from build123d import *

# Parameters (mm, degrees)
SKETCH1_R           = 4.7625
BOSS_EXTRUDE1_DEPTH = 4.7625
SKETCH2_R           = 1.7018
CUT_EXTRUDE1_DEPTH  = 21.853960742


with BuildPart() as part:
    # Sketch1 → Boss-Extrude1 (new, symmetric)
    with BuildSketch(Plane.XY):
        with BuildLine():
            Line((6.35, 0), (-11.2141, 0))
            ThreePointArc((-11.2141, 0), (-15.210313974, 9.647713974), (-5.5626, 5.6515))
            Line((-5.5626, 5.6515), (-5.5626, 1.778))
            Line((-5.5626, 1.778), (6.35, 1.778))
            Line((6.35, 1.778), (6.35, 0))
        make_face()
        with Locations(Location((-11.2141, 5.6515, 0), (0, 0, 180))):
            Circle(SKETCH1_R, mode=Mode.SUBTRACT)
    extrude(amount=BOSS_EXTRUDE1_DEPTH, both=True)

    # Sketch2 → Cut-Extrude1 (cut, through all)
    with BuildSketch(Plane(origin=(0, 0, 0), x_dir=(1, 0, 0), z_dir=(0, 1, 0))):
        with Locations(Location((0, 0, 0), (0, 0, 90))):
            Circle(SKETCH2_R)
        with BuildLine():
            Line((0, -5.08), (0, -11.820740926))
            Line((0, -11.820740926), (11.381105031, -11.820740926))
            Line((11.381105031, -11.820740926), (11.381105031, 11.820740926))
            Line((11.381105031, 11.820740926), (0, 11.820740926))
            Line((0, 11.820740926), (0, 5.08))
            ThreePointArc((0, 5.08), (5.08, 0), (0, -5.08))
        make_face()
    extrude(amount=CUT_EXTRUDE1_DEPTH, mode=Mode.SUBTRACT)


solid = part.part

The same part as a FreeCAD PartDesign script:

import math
import FreeCAD as App
import Part
import Sketcher
from FreeCAD import Vector
Q = App.Units.Quantity

doc = App.newDocument("Part")
body = doc.addObject("PartDesign::Body", "Body")

# Sketch on XY plane
sketch1 = doc.addObject("Sketcher::SketchObject", "Sketch")
body.addObject(sketch1)
sketch1.AttachmentSupport = (doc.XY_Plane, [""])
sketch1.MapMode = "FlatFace"
sketch1.addGeometry(Part.LineSegment(Vector(-11.2, 0, 0), Vector(6.3, 0, 0)), False)
sketch1.addGeometry(Part.LineSegment(Vector(6.3, 0, 0), Vector(6.3, 1.8, 0)), False)
sketch1.addGeometry(Part.LineSegment(Vector(6.3, 1.8, 0), Vector(-5.6, 1.8, 0)), False)
sketch1.addGeometry(Part.LineSegment(Vector(-5.6, 1.8, 0), Vector(-5.6, 5.7, 0)), False)
sketch1.addGeometry(Part.ArcOfCircle(Part.Circle(Vector(-11.2, 5.7, 0), Vector(0, 0, 1), 5.7), math.radians(0), math.radians(270)), False)
sketch1.addGeometry(Part.Circle(Vector(-11.2, 5.7, 0), Vector(0, 0, 1), 4.8), False)
sketch1.addConstraint(Sketcher.Constraint("Coincident", 0, 2, 1, 1))
sketch1.addConstraint(Sketcher.Constraint("Coincident", 1, 2, 2, 1))
sketch1.addConstraint(Sketcher.Constraint("Coincident", 2, 2, 3, 1))
sketch1.addConstraint(Sketcher.Constraint("Tangent", 3, 2, 4, 1))
sketch1.addConstraint(Sketcher.Constraint("Tangent", 4, 2, 0, 1))
sketch1.addConstraint(Sketcher.Constraint("Horizontal", 0))
sketch1.addConstraint(Sketcher.Constraint("Vertical", 1))
sketch1.addConstraint(Sketcher.Constraint("Horizontal", 2))
sketch1.addConstraint(Sketcher.Constraint("Vertical", 3))
sketch1.addConstraint(Sketcher.Constraint("Coincident", 5, 3, 4, 3))
sketch1.addConstraint(Sketcher.Constraint("PointOnObject", 0, 2, -1))
sketch1.addConstraint(Sketcher.Constraint("Diameter", 5, Q("0.375 in")))
sketch1.addConstraint(Sketcher.Constraint("DistanceY", 1, 1, 1, 2, Q("0.07 in")))
sketch1.addConstraint(Sketcher.Constraint("Radius", 4, Q("0.2225 in")))
sketch1.addConstraint(Sketcher.Constraint("DistanceX", 2, 2, 2, 1, Q("0.469 in")))
sketch1.addConstraint(Sketcher.Constraint("DistanceX", -1, 1, 0, 2, Q("0.25 in")))
pad1 = doc.addObject("PartDesign::Pad", "Pad")
body.addObject(pad1)
pad1.Profile = sketch1
pad1.Length = Q("0.375 in")
pad1.Midplane = True

# Sketch on XZ plane
sketch2 = doc.addObject("Sketcher::SketchObject", "Sketch001")
body.addObject(sketch2)
sketch2.AttachmentSupport = (doc.XZ_Plane, [""])
sketch2.MapMode = "FlatFace"
sketch2.addGeometry(Part.Circle(Vector(0, 0, 0), Vector(0, 0, 1), 1.7), False)
sketch2.addGeometry(Part.LineSegment(Vector(0, 5.1, 0), Vector(0, 11.8, 0)), False)
sketch2.addGeometry(Part.LineSegment(Vector(0, 11.8, 0), Vector(11.4, 11.8, 0)), False)
sketch2.addGeometry(Part.LineSegment(Vector(11.4, 11.8, 0), Vector(11.4, -11.8, 0)), False)
sketch2.addGeometry(Part.LineSegment(Vector(11.4, -11.8, 0), Vector(0, -11.8, 0)), False)
sketch2.addGeometry(Part.LineSegment(Vector(0, -11.8, 0), Vector(0, -5.1, 0)), False)
sketch2.addGeometry(Part.ArcOfCircle(Part.Circle(Vector(0, 0, 0), Vector(0, 0, 1), 5.1), math.radians(-90), math.radians(90)), False)
sketch2.addConstraint(Sketcher.Constraint("Coincident", 1, 2, 2, 1))
sketch2.addConstraint(Sketcher.Constraint("Coincident", 2, 2, 3, 1))
sketch2.addConstraint(Sketcher.Constraint("Coincident", 3, 2, 4, 1))
sketch2.addConstraint(Sketcher.Constraint("Coincident", 4, 2, 5, 1))
sketch2.addConstraint(Sketcher.Constraint("Coincident", 5, 2, 6, 1))
sketch2.addConstraint(Sketcher.Constraint("Coincident", 6, 2, 1, 1))
sketch2.addConstraint(Sketcher.Constraint("Vertical", 1))
sketch2.addConstraint(Sketcher.Constraint("Horizontal", 2))
sketch2.addConstraint(Sketcher.Constraint("Vertical", 3))
sketch2.addConstraint(Sketcher.Constraint("Horizontal", 4))
sketch2.addConstraint(Sketcher.Constraint("Vertical", 5))
sketch2.addConstraint(Sketcher.Constraint("Coincident", 0, 3, -1, 1))
sketch2.addConstraint(Sketcher.Constraint("Coincident", 6, 3, -1, 1))
sketch2.addConstraint(Sketcher.Constraint("Symmetric", 1, 2, 4, 2, -1, 1))
sketch2.addConstraint(Sketcher.Constraint("PointOnObject", 1, 2, -2))
sketch2.addConstraint(Sketcher.Constraint("Radius", 6, Q("0.2 in")))
sketch2.addConstraint(Sketcher.Constraint("Diameter", 0, Q("0.134 in")))
sketch2.addConstraint(Sketcher.Constraint("DistanceY", 1, 1, 1, 2, Q("6.740741 mm")))
sketch2.addConstraint(Sketcher.Constraint("DistanceX", 2, 1, 2, 2, Q("11.381105 mm")))
pocket1 = doc.addObject("PartDesign::Pocket", "Pocket")
body.addObject(pocket1)
pocket1.Profile = sketch2
pocket1.Type = "ThroughAll"

doc.recompute()
